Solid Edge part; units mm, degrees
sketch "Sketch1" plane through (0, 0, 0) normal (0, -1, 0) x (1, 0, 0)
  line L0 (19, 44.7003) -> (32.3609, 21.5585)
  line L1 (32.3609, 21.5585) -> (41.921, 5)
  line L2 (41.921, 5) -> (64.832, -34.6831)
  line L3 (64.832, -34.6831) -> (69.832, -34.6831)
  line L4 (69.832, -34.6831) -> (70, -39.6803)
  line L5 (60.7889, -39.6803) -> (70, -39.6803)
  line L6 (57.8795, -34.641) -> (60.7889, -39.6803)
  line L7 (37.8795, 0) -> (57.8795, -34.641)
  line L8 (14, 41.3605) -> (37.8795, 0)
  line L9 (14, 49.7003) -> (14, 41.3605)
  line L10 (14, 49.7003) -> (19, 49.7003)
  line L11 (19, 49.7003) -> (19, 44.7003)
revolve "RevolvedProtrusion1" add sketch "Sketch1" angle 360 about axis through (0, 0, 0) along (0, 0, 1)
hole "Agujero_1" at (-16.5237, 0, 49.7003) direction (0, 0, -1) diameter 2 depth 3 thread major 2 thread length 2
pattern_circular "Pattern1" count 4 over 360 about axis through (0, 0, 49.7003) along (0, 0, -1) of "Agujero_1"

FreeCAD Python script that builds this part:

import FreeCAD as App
import Part
import Sketcher

V = App.Vector


def add_polygon(sketch, points):
    """Adds a closed chain of lines whose ends are joined by coincident constraints."""
    first, n = sketch.GeometryCount, len(points)
    for a, b in zip(points, points[1:] + points[:1]):
        sketch.addGeometry(Part.LineSegment(App.Vector(*a, 0), App.Vector(*b, 0)), False)
    for i in range(n):
        sketch.addConstraint(Sketcher.Constraint("Coincident", first + i, 2, first + (i + 1) % n, 1))

doc = App.newDocument("Part")
body = doc.addObject("PartDesign::Body", "Body")

# Sketch on XZ plane
sketch1 = body.newObject("Sketcher::SketchObject", "Sketch")
sketch1.AttachmentSupport = (doc.getObject("XZ_Plane"), [""])
sketch1.MapMode = "FlatFace"
add_polygon(sketch1, [(32.3609, 21.5585), (19, 44.7003), (19, 49.7003), (14, 49.7003), (14, 41.3605), (37.8795, 0), (57.8795, -34.641), (60.7889, -39.6803), (70, -39.6803), (69.832, -34.6831), (64.832, -34.6831), (41.921, 5)])  # lines 0-11
sketch1.addConstraint(Sketcher.Constraint("Vertical", 1))
sketch1.addConstraint(Sketcher.Constraint("Horizontal", 2))
sketch1.addConstraint(Sketcher.Constraint("Vertical", 3))
sketch1.addConstraint(Sketcher.Constraint("Horizontal", 7))
sketch1.addConstraint(Sketcher.Constraint("Horizontal", 9))
sketch1.addConstraint(Sketcher.Constraint("PointOnObject", 4, 2, -1))
sketch1.addConstraint(Sketcher.Constraint("DistanceX", 2, 2, 2, 1, 5.0))
sketch1.addConstraint(Sketcher.Constraint("DistanceX", 9, 2, 9, 1, 5.0))
sketch1.addConstraint(Sketcher.Constraint("DistanceY", 1, 1, 1, 2, 5.0))
sketch1.addConstraint(Sketcher.Constraint("Distance", 5, 40.0))
sketch1.addConstraint(Sketcher.Constraint("Distance", 8, 5.0))
sketch1.addConstraint(Sketcher.Constraint("DistanceX", -1, 1, 0, 2, 19.0))
sketch1.addConstraint(Sketcher.Constraint("DistanceX", -1, 1, 7, 2, 70.0))
sketch1.addConstraint(Sketcher.Constraint("DistanceY", -1, 1, 10, 2, 5.0))
sketch1.addConstraint(Sketcher.Constraint("DistanceX", 4, 2, 5, 2, 20.0))
sketch1.addConstraint(Sketcher.Constraint("DistanceX", 7, 1, 7, 2, 9.211))
sketch1.addConstraint(Sketcher.Constraint("DistanceX", 11, 2, 10, 2, 9.56))
sketch1.addConstraint(Sketcher.Constraint("Distance", 4, 47.759))
sketch1.addConstraint(Sketcher.Constraint("Distance", 10, 45.822))
sketch1.addConstraint(Sketcher.Constraint("DistanceY", 3, 2, 3, 1, 8.3398))
sketch1.addConstraint(Sketcher.Constraint("DistanceX", -1, 1, 8, 2, 69.832))
sketch1.addConstraint(Sketcher.Constraint("DistanceY", 8, 2, -1, 1, 34.683))
sketch1.addConstraint(Sketcher.Constraint("DistanceY", 11, 2, 3, 2, 19.802))
sketch1.addConstraint(Sketcher.Constraint("Distance", 6, 5.8189))
revolution = body.newObject("PartDesign::Revolution", "Revolution")
revolution.Profile = sketch1
revolution.ReferenceAxis = (sketch1, ["V_Axis"])
revolution.Angle = 360

# Sketch on XY plane
sketch2 = body.newObject("Sketcher::SketchObject", "Sketch001")
sketch2.AttachmentSupport = (doc.getObject("XY_Plane"), [""])
sketch2.MapMode = "FlatFace"
sketch2.AttachmentOffset = App.Placement(V(0, 0, 49.7003), App.Rotation())
sketch2.addGeometry(Part.Circle(V(-16.5237, 0, 0), V(0, 0, 1), 1), False)
sketch2.addConstraint(Sketcher.Constraint("PointOnObject", 0, 3, -1))
sketch2.addConstraint(Sketcher.Constraint("Diameter", 0, 2.0))
sketch2.addConstraint(Sketcher.Constraint("DistanceX", 0, 3, -1, 1, 16.5237))
doc.recompute()
hole = body.newObject("PartDesign::Hole", "Hole")
hole.Profile = sketch2
hole.ThreadType = "None"
hole.Diameter = 2
hole.DepthType = "Dimension"
hole.Depth = 3
hole.DrillPoint = "Flat"
doc.recompute()

polarpattern = body.newObject("PartDesign::PolarPattern", "PolarPattern")
polarpattern.Originals = [hole]
polarpattern.Axis = (doc.getObject("Z_Axis"), [""])
polarpattern.Angle = 360
polarpattern.Occurrences = 4
body.Tip = polarpattern

doc.recompute()
